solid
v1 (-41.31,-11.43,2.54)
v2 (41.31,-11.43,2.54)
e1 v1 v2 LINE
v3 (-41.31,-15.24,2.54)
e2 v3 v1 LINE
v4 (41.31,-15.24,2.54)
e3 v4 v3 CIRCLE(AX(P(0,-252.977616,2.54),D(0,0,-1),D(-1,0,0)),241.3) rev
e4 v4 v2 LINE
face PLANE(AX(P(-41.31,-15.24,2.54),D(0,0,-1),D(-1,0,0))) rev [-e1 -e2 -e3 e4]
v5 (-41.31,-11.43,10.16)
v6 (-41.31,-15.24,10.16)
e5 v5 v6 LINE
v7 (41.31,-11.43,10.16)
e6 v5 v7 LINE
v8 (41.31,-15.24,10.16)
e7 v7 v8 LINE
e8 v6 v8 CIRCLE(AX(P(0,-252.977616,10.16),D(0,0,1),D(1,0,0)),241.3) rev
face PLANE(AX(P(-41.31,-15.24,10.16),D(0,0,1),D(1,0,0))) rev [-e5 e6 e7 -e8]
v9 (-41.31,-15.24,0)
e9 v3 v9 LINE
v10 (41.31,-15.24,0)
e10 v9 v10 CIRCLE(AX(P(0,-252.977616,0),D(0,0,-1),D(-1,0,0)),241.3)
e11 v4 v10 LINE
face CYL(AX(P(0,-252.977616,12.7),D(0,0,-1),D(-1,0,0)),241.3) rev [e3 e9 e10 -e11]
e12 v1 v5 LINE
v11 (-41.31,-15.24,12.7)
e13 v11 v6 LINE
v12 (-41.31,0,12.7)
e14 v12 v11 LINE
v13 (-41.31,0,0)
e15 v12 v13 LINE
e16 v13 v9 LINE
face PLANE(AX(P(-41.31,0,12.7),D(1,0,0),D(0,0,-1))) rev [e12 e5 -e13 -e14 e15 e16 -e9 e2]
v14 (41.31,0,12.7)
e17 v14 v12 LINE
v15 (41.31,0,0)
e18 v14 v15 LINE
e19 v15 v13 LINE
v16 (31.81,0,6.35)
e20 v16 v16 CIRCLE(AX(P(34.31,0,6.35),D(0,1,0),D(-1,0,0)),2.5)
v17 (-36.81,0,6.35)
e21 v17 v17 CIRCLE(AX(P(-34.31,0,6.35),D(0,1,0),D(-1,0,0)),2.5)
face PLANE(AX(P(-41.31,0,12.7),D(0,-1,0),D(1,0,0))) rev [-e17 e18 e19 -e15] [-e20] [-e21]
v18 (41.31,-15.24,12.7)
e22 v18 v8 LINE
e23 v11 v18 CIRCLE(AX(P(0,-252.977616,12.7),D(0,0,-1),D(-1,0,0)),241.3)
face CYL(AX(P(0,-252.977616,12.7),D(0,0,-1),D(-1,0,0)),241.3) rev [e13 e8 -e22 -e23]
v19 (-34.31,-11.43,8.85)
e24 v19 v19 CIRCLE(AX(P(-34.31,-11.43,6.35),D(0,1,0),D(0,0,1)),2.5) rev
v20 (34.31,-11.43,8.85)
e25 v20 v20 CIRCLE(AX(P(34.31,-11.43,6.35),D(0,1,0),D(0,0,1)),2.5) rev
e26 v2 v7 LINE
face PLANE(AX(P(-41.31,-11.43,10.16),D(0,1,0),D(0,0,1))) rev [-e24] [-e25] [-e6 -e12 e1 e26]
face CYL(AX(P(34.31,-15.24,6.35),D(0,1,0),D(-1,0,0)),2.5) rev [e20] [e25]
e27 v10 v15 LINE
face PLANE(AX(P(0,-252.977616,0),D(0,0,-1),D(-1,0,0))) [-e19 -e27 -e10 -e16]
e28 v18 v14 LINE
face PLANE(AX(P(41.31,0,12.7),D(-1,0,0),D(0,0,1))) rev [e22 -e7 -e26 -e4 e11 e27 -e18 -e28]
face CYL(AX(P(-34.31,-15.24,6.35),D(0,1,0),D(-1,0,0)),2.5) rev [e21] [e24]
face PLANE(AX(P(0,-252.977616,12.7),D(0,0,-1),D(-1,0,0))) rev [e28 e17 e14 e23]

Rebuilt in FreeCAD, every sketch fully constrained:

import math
import FreeCAD as App
import Part
import Sketcher
Q = App.Units.Quantity


def add_polygon(sketch, points):
    """Adds a closed chain of lines whose ends are joined by coincident constraints."""
    first, n = sketch.GeometryCount, len(points)
    for a, b in zip(points, points[1:] + points[:1]):
        sketch.addGeometry(Part.LineSegment(App.Vector(*a, 0), App.Vector(*b, 0)), False)
    for i in range(n):
        sketch.addConstraint(Sketcher.Constraint("Coincident", first + i, 2, first + (i + 1) % n, 1))

doc = App.newDocument("Part")
params = doc.addObject("Spreadsheet::Sheet", "Params")
for row, (alias, value) in enumerate([
    ("sketch1_radius", "9.5 in"),
    ("sketch1_height", "0.6 in"),
    ("pad1_length", "0.5 in"),
    ("sketch3_height", "0.3 in"),
    ("sketch3_width", "0.15 in"),
], start=1):
    params.set(f"A{row}", alias)
    params.set(f"B{row}", "=" + value)
    params.setAlias(f"B{row}", alias)

body = doc.addObject("PartDesign::Body", "Body")

# Sketch on XY plane
sketch1 = doc.addObject("Sketcher::SketchObject", "Sketch")
body.addObject(sketch1)
sketch1.AttachmentSupport = (doc.XY_Plane, [""])
sketch1.MapMode = "FlatFace"
sketch1.addGeometry([
    Part.LineSegment(App.Vector(41, 0, 0), App.Vector(-41, 0, 0)),
    Part.LineSegment(App.Vector(-41, 0, 0), App.Vector(-41, -15, 0)),
    Part.ArcOfCircle(Part.Circle(App.Vector(0, -253, 0), App.Vector(0, 0, 1), 241), math.radians(80.14), math.radians(99.86)),
    Part.LineSegment(App.Vector(41, -15, 0), App.Vector(41, 0, 0)),
], False)
sketch1.addConstraint([
    Sketcher.Constraint("Coincident", 0, 2, 1, 1),
    Sketcher.Constraint("Coincident", 1, 2, 2, 2),
    Sketcher.Constraint("Coincident", 2, 1, 3, 1),
    Sketcher.Constraint("Coincident", 3, 2, 0, 1),
    Sketcher.Constraint("Horizontal", 0),
    Sketcher.Constraint("Vertical", 1),
    Sketcher.Constraint("Vertical", 3),
    Sketcher.Constraint("Symmetric", 0, 2, 3, 2, -1, 1),
    Sketcher.Constraint("PointOnObject", 2, 3, -2),
    Sketcher.Constraint("Radius", 2, Q("9.5 in")),
    Sketcher.Constraint("DistanceY", 1, 2, 1, 1, Q("0.6 in")),
    Sketcher.Constraint("DistanceX", 0, 2, 0, 1, 82.62),
])
sketch1.setExpression("Constraints[9]", "Params.sketch1_radius")
sketch1.setExpression("Constraints[10]", "Params.sketch1_height")
pad1 = doc.addObject("PartDesign::Pad", "Pad")
body.addObject(pad1)
pad1.Profile = sketch1
pad1.setExpression("Length", "Params.pad1_length")

# Sketch on XZ plane
sketch2 = doc.addObject("Sketcher::SketchObject", "Sketch001")
body.addObject(sketch2)
sketch2.AttachmentSupport = (doc.XZ_Plane, [""])
sketch2.MapMode = "FlatFace"
sketch2.addGeometry([
    Part.Circle(App.Vector(-34.3, 6.3, 0), App.Vector(0, 0, 1), 2.5),
    Part.Circle(App.Vector(34.3, 6.3, 0), App.Vector(0, 0, 1), 2.5),
], False)
sketch2.addConstraint([
    Sketcher.Constraint("Equal", 0, 1),
    Sketcher.Constraint("Symmetric", 0, 3, 1, 3, -2),
    Sketcher.Constraint("Diameter", 0, 5.0),
    Sketcher.Constraint("DistanceY", -1, 1, 0, 3, Q("0.25 in")),
    Sketcher.Constraint("DistanceX", 0, 3, -1, 1, 34.31),
])
pocket1 = doc.addObject("PartDesign::Pocket", "Pocket")
body.addObject(pocket1)
pocket1.Profile = sketch2
pocket1.Type = "ThroughAll"
pocket1.Reversed = True

# Sketch on YZ plane
sketch3 = doc.addObject("Sketcher::SketchObject", "Sketch002")
body.addObject(sketch3)
sketch3.AttachmentSupport = (doc.YZ_Plane, [""])
sketch3.MapMode = "FlatFace"
sketch3.AttachmentOffset = App.Placement(App.Vector(0, 0, 41.31), App.Rotation())
add_polygon(sketch3, [(-11.4, 10.2), (-15.2, 10.2), (-15.2, 2.5), (-11.4, 2.5)])  # lines 0-3
sketch3.addConstraint([
    Sketcher.Constraint("Horizontal", 0),
    Sketcher.Constraint("Vertical", 1),
    Sketcher.Constraint("Horizontal", 2),
    Sketcher.Constraint("Vertical", 3),
    Sketcher.Constraint("DistanceY", 1, 2, 1, 1, Q("0.3 in")),
    Sketcher.Constraint("DistanceX", 0, 2, 0, 1, Q("0.15 in")),
    Sketcher.Constraint("DistanceX", 0, 2, -1, 1, Q("0.6 in")),
    Sketcher.Constraint("DistanceY", -1, 1, 0, 2, Q("0.4 in")),
])
sketch3.setExpression("Constraints[8]", "Params.sketch3_height")
sketch3.setExpression("Constraints[9]", "Params.sketch3_width")
pocket2 = doc.addObject("PartDesign::Pocket", "Pocket001")
body.addObject(pocket2)
pocket2.Profile = sketch3
pocket2.Type = "ThroughAll"

doc.recompute()
